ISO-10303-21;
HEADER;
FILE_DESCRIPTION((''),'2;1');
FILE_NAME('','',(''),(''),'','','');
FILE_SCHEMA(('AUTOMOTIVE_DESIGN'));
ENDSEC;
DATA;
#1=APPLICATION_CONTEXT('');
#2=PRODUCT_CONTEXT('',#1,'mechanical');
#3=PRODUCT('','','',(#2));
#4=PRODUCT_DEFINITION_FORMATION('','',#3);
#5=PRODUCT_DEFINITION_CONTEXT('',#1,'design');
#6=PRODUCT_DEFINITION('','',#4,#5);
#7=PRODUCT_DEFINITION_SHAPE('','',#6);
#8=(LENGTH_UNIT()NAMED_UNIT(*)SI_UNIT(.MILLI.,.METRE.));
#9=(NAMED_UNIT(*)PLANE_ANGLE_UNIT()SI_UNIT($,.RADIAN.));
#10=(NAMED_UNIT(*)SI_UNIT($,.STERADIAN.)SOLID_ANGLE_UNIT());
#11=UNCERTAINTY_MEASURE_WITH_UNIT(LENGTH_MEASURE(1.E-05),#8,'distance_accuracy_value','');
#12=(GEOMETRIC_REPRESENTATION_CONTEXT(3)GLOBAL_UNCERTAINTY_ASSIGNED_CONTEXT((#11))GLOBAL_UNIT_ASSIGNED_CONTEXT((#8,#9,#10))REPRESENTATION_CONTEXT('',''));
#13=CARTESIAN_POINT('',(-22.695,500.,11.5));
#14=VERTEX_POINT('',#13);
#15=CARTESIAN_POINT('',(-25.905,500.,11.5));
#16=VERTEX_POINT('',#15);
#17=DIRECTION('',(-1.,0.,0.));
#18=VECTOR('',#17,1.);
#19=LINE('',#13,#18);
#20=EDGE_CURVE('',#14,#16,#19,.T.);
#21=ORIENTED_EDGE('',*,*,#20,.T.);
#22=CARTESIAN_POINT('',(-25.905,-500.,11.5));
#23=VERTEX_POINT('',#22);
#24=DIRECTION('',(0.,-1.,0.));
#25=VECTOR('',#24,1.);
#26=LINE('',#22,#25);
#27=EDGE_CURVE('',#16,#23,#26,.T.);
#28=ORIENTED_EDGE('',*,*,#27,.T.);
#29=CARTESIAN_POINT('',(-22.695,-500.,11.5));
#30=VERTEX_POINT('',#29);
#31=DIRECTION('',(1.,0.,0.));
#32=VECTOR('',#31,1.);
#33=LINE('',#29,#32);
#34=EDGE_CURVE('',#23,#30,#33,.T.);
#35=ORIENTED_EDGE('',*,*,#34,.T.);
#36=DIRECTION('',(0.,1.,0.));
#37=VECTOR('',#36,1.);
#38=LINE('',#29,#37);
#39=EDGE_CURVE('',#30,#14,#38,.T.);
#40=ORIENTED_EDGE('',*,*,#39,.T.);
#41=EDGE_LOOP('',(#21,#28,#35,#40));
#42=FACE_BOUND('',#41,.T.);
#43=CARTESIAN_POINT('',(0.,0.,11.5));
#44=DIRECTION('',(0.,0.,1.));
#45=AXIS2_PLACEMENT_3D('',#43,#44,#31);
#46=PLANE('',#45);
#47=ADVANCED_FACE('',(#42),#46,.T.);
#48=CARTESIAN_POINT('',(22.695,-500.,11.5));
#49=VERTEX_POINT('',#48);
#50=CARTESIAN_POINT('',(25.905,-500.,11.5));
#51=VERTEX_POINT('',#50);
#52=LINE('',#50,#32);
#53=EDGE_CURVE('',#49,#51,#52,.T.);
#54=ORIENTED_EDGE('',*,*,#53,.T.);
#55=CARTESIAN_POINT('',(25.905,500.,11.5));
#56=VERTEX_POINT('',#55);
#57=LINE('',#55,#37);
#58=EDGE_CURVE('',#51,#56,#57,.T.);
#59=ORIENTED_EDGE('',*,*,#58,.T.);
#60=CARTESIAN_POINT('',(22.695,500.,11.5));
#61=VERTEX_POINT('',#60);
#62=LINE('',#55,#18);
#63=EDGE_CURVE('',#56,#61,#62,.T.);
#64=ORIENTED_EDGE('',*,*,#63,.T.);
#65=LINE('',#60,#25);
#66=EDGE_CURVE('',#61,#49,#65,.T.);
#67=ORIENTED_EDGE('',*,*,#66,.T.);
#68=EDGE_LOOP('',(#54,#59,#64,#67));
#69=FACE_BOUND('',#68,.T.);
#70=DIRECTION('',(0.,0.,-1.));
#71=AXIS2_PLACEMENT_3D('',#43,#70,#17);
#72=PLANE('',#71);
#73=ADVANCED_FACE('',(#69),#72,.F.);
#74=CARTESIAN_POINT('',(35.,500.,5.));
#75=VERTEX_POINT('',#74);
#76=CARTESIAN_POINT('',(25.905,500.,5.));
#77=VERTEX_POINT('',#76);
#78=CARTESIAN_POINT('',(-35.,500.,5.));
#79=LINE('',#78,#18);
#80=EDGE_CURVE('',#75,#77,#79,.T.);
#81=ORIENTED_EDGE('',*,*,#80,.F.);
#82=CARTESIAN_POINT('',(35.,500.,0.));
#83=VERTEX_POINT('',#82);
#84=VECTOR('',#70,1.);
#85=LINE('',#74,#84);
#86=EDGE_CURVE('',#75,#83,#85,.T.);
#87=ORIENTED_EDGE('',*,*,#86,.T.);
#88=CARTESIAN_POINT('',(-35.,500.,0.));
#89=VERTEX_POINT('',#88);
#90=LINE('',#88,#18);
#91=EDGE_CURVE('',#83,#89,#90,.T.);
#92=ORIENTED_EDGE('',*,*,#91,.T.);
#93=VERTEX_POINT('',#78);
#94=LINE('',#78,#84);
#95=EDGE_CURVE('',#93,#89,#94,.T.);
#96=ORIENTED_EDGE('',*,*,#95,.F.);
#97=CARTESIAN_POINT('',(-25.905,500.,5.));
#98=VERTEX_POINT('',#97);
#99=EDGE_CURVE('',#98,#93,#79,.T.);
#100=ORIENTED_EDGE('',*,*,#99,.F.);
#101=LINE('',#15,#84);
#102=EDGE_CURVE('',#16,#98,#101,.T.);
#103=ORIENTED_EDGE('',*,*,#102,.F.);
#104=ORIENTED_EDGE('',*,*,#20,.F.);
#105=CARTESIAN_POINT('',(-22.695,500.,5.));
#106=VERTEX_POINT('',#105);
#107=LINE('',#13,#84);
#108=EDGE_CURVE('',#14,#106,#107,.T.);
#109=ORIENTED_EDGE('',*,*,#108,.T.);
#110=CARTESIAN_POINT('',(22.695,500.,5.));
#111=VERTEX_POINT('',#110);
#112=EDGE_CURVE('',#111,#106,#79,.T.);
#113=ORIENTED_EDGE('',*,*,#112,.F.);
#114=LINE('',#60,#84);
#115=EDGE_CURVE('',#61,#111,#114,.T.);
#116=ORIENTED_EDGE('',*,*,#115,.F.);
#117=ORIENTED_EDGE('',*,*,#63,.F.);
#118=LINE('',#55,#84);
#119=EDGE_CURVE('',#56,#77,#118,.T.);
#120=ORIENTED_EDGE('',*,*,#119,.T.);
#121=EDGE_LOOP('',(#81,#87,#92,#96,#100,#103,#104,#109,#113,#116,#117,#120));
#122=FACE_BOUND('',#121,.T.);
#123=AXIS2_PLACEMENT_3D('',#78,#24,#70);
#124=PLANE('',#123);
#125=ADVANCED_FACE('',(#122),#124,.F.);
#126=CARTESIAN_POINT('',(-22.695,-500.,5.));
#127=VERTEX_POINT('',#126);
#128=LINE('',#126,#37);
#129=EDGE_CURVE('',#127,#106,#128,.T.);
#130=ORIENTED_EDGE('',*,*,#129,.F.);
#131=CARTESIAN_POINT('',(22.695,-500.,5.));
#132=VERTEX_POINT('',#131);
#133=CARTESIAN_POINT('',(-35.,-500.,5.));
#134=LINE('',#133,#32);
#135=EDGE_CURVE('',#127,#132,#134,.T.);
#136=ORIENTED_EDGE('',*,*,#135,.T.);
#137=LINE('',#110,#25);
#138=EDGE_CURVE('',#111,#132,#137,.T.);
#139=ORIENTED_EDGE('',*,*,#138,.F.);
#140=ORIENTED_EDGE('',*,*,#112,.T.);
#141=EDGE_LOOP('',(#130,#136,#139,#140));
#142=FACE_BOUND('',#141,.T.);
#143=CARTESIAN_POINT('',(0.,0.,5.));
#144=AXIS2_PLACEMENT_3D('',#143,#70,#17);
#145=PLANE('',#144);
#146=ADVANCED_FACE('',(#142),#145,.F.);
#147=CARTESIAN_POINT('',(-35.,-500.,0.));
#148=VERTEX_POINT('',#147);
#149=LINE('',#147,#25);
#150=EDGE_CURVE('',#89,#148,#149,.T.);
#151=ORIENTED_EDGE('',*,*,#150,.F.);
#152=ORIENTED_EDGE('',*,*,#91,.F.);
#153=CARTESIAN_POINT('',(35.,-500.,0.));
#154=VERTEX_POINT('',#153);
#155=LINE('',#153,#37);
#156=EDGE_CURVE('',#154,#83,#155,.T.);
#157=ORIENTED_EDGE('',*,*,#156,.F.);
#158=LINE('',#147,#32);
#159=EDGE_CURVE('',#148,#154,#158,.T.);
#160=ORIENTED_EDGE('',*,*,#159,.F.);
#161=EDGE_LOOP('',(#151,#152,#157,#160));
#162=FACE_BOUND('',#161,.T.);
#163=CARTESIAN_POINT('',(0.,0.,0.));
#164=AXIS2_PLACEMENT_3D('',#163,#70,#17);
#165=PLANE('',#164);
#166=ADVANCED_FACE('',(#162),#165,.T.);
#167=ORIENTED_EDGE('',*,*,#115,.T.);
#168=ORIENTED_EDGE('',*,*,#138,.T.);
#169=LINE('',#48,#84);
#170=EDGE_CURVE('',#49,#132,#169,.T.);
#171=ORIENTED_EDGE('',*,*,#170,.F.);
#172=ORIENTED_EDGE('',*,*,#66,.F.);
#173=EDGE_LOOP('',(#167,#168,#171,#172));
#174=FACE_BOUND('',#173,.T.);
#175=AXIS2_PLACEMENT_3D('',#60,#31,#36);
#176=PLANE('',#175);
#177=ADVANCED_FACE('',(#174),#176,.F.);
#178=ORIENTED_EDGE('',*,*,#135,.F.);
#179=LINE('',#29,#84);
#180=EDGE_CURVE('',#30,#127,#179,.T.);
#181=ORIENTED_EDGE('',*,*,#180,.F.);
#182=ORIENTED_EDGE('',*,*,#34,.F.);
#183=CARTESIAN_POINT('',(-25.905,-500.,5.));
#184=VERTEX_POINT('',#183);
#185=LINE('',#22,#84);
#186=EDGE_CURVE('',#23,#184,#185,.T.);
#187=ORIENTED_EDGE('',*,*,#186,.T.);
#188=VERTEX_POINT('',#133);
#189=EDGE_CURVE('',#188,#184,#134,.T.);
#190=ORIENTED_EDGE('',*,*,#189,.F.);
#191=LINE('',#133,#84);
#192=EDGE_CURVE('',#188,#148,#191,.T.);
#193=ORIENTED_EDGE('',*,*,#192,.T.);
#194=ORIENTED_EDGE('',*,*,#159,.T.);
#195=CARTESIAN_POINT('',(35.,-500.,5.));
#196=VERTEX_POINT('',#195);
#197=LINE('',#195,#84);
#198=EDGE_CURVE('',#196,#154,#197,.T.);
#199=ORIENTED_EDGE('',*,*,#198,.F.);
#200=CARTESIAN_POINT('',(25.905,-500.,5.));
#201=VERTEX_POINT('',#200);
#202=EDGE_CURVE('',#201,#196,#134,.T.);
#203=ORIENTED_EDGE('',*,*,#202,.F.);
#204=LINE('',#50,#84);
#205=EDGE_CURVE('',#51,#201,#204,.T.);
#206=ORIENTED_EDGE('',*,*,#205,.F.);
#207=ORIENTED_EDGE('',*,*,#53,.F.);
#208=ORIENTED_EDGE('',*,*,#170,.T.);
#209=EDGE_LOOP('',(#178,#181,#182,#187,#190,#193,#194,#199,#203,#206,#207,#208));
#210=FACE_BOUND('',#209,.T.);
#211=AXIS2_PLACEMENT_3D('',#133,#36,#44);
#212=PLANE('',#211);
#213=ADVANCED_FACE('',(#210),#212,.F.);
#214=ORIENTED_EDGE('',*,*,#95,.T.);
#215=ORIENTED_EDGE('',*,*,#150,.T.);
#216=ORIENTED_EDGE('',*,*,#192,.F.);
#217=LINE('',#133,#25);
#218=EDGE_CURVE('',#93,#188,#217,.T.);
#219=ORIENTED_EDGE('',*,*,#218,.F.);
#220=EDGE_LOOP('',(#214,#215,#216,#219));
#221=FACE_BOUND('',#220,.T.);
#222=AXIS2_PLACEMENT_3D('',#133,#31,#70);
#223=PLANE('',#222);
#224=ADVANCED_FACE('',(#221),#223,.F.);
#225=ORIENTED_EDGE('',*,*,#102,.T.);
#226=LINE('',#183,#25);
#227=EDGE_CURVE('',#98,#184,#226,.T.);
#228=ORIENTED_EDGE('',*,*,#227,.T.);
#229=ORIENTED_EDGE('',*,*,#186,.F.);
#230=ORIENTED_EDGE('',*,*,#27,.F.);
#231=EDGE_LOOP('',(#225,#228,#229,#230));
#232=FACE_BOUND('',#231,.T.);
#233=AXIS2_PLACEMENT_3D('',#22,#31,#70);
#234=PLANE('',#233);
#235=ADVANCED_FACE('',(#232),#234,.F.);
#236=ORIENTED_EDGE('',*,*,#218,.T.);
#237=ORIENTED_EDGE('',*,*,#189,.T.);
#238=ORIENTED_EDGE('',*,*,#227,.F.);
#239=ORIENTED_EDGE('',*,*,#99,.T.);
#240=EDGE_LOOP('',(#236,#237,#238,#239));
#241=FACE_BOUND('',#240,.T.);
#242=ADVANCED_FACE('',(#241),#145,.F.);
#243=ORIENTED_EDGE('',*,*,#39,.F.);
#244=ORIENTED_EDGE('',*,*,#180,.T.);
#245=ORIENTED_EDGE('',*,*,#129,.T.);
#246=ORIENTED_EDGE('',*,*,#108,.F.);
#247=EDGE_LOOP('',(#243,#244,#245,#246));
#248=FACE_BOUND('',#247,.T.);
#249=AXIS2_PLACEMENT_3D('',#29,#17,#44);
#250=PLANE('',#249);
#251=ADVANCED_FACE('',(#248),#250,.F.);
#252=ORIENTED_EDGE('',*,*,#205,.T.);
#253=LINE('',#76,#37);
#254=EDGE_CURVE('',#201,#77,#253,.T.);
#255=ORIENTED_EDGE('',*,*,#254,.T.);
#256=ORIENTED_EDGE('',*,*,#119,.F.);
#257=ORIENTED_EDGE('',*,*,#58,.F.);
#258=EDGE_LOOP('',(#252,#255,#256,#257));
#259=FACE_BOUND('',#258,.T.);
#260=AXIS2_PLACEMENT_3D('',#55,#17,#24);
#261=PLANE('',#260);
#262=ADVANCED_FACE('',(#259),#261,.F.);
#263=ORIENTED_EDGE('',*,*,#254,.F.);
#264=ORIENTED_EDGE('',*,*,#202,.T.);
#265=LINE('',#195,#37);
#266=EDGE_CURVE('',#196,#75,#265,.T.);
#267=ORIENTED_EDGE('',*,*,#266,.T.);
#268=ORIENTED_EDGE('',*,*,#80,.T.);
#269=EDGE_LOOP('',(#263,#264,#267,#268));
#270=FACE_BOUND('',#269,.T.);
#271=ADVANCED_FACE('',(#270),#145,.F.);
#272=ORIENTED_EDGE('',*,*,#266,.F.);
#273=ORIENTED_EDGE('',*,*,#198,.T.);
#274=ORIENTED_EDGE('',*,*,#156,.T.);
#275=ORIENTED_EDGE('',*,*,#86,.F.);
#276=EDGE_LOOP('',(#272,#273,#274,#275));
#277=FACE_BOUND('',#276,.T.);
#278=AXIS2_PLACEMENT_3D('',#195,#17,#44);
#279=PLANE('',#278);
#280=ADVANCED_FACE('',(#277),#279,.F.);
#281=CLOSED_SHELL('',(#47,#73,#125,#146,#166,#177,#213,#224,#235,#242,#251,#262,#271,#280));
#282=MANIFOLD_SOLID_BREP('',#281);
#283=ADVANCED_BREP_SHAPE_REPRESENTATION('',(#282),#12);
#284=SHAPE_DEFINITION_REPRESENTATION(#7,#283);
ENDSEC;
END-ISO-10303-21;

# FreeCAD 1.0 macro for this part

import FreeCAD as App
import Part
import Sketcher


def add_polygon(sketch, points):
    """Adds a closed chain of lines whose ends are joined by coincident constraints."""
    first, n = sketch.GeometryCount, len(points)
    for a, b in zip(points, points[1:] + points[:1]):
        sketch.addGeometry(Part.LineSegment(App.Vector(*a, 0), App.Vector(*b, 0)), False)
    for i in range(n):
        sketch.addConstraint(Sketcher.Constraint("Coincident", first + i, 2, first + (i + 1) % n, 1))

doc = App.newDocument("Part")
body = doc.addObject("PartDesign::Body", "Body")

sketch1 = doc.addObject("Sketcher::SketchObject", "Sketch")
body.addObject(sketch1)
sketch1.AttachmentSupport = (doc.XY_Plane, [""])
sketch1.MapMode = "FlatFace"
add_polygon(sketch1, [(-35, 500), (-35, -500), (35, -500), (35, 500)])
sketch1.addConstraint([
    Sketcher.Constraint("Vertical", 0),
    Sketcher.Constraint("Horizontal", 1),
    Sketcher.Constraint("Vertical", 2),
    Sketcher.Constraint("Horizontal", 3),
    Sketcher.Constraint("Symmetric", 0, 2, 2, 2, -1, 1),
    Sketcher.Constraint("DistanceX", 1, 1, 1, 2, 70.0),
    Sketcher.Constraint("DistanceY", 0, 2, 0, 1, 1000.0),
])
pad1 = doc.addObject("PartDesign::Pad", "Pad")
body.addObject(pad1)
pad1.Profile = sketch1
pad1.Length = 5

sketch2 = doc.addObject("Sketcher::SketchObject", "Sketch001")
body.addObject(sketch2)
sketch2.AttachmentSupport = (doc.XY_Plane, [""])
sketch2.MapMode = "FlatFace"
sketch2.AttachmentOffset = App.Placement(App.Vector(0, 0, 5), App.Rotation())
add_polygon(sketch2, [(-25.9, 500), (-25.9, -500), (-22.7, -500), (-22.7, 500)])
add_polygon(sketch2, [(22.7, 500), (22.7, -500), (25.9, -500), (25.9, 500)])
sketch2.addConstraint([
    Sketcher.Constraint("Vertical", 0),
    Sketcher.Constraint("Horizontal", 1),
    Sketcher.Constraint("Vertical", 2),
    Sketcher.Constraint("Horizontal", 3),
    Sketcher.Constraint("Vertical", 4),
    Sketcher.Constraint("Horizontal", 5),
    Sketcher.Constraint("Vertical", 6),
    Sketcher.Constraint("Horizontal", 7),
    Sketcher.Constraint("Symmetric", 2, 2, 4, 2, -1, 1),
    Sketcher.Constraint("Symmetric", 0, 2, 6, 2, -1, 1),
    Sketcher.Constraint("Horizontal", 1, 2, 4, 2),
    Sketcher.Constraint("DistanceY", 0, 2, 0, 1, 1000.0),
    Sketcher.Constraint("DistanceX", 1, 1, 1, 2, 3.21),
    Sketcher.Constraint("DistanceX", 0, 2, 4, 2, 48.6),
])
pad2 = doc.addObject("PartDesign::Pad", "Pad001")
body.addObject(pad2)
pad2.Profile = sketch2
pad2.Length = 6.5

doc.recompute()
